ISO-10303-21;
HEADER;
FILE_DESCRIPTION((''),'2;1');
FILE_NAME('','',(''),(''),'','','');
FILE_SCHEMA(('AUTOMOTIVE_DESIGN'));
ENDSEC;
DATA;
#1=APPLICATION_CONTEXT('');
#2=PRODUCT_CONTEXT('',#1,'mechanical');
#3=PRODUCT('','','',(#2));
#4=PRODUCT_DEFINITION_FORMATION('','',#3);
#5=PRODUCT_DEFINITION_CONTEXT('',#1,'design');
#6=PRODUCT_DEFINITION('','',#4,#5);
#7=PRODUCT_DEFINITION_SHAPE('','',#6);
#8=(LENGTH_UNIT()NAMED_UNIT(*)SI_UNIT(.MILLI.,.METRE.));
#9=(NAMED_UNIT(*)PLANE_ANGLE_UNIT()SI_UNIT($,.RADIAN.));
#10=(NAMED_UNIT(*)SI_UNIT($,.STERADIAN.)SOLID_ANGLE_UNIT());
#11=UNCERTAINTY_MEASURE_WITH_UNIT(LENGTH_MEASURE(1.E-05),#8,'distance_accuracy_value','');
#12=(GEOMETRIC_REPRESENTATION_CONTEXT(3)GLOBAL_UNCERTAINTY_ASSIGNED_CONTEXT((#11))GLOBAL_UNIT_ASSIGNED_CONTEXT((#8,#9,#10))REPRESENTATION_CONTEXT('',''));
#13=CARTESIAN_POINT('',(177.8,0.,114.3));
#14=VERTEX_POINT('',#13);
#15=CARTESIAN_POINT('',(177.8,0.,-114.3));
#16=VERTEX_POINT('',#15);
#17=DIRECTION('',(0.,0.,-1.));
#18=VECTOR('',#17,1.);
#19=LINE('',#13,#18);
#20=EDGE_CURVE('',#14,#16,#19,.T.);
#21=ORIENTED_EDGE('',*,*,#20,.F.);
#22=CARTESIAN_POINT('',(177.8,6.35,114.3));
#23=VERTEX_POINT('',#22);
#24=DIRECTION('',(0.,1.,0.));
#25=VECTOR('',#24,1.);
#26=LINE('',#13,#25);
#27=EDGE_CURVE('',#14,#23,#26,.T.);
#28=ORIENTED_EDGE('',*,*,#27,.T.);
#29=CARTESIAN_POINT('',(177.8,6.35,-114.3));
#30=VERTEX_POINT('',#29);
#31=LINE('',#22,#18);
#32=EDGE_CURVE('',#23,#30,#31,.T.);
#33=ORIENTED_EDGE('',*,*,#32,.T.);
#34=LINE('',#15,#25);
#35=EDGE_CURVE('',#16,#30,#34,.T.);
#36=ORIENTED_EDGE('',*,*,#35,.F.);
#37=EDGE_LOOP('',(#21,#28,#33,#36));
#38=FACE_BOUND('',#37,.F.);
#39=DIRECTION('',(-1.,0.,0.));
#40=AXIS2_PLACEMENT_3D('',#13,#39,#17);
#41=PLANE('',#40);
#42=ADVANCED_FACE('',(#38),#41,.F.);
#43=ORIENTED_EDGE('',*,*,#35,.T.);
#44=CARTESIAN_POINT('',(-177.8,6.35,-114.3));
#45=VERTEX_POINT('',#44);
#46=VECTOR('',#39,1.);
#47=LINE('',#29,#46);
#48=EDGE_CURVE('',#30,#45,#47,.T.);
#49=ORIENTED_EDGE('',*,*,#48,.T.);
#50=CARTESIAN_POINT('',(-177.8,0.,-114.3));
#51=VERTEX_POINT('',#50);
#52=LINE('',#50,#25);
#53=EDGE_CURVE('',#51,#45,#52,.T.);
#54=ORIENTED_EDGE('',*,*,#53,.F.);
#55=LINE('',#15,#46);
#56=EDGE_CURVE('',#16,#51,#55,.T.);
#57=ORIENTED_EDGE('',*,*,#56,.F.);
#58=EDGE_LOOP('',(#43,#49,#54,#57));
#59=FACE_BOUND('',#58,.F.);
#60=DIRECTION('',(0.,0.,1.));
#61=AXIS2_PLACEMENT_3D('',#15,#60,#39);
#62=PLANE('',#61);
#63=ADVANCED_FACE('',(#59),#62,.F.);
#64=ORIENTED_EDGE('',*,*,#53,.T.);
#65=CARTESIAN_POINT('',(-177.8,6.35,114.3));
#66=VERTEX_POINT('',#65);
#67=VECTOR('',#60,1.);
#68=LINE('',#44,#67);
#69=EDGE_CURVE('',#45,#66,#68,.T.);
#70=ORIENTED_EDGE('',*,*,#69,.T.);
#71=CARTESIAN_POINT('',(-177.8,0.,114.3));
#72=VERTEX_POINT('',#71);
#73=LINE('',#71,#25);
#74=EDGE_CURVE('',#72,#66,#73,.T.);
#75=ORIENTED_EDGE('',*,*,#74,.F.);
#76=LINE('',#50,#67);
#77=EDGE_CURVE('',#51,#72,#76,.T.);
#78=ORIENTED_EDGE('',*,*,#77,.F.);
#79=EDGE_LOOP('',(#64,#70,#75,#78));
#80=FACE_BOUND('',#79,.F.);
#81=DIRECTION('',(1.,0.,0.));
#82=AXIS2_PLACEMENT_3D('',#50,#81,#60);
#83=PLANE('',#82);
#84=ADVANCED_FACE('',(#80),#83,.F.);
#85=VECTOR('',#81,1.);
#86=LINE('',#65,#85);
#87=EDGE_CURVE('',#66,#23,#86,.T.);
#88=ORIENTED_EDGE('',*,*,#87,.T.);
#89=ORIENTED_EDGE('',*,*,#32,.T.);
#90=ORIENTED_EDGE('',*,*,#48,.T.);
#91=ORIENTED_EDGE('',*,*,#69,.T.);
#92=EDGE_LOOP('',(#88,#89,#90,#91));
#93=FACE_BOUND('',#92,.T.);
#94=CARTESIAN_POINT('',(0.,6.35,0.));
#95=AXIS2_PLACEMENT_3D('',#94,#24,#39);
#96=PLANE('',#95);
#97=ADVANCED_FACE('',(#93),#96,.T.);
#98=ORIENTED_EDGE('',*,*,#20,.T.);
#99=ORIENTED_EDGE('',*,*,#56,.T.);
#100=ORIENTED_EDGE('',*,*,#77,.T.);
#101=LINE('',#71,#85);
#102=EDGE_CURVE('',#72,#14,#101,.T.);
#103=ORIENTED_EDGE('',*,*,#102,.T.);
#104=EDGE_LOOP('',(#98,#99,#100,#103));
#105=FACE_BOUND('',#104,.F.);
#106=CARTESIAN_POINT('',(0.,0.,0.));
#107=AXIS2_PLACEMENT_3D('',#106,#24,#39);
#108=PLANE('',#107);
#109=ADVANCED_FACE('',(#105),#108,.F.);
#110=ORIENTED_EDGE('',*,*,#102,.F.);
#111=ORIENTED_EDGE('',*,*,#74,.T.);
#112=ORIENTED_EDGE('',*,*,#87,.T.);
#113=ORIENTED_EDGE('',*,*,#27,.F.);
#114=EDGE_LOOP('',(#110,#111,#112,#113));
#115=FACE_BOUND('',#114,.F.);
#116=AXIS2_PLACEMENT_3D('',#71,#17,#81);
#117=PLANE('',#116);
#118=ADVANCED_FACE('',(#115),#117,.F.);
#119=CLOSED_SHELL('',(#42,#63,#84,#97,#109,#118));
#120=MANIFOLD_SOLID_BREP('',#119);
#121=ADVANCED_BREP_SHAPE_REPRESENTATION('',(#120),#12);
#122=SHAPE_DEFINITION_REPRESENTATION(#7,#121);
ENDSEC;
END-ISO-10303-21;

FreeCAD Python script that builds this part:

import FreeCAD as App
import Part
import Sketcher
Q = App.Units.Quantity


def add_polygon(sketch, points):
    """Adds a closed chain of lines whose ends are joined by coincident constraints."""
    first, n = sketch.GeometryCount, len(points)
    for a, b in zip(points, points[1:] + points[:1]):
        sketch.addGeometry(Part.LineSegment(App.Vector(*a, 0), App.Vector(*b, 0)), False)
    for i in range(n):
        sketch.addConstraint(Sketcher.Constraint("Coincident", first + i, 2, first + (i + 1) % n, 1))

doc = App.newDocument("Part")
body = doc.addObject("PartDesign::Body", "Body")

sketch1 = body.newObject("Sketcher::SketchObject", "Sketch")
sketch1.AttachmentSupport = (doc.getObject("XZ_Plane"), [""])
sketch1.MapMode = "FlatFace"
add_polygon(sketch1, [(-177.8, -114.3), (-177.8, 114.3), (177.8, 114.3), (177.8, -114.3)])
sketch1.addConstraint([
    Sketcher.Constraint("Vertical", 0),
    Sketcher.Constraint("Horizontal", 1),
    Sketcher.Constraint("Vertical", 2),
    Sketcher.Constraint("Horizontal", 3),
    Sketcher.Constraint("Symmetric", 0, 2, 2, 2, -1, 1),
    Sketcher.Constraint("DistanceX", 1, 1, 1, 2, Q("14 in")),
    Sketcher.Constraint("DistanceY", 0, 1, 0, 2, Q("9 in")),
])
pad1 = body.newObject("PartDesign::Pad", "Pad")
pad1.Profile = sketch1
pad1.Length = Q("0.25 in")
pad1.Reversed = True

doc.recompute()
